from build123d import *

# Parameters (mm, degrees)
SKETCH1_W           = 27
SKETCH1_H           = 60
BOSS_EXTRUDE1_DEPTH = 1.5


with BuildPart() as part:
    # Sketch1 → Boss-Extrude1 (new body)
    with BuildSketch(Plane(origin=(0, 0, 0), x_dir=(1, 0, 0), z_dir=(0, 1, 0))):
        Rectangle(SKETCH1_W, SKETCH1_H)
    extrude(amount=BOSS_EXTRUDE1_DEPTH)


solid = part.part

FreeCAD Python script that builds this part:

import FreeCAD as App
import Part
import Sketcher
from FreeCAD import Vector
Q = App.Units.Quantity


def add_polygon(sketch, points):
    """Adds a closed chain of lines whose ends are joined by coincident constraints."""
    first, n = sketch.GeometryCount, len(points)
    for a, b in zip(points, points[1:] + points[:1]):
        sketch.addGeometry(Part.LineSegment(App.Vector(*a, 0), App.Vector(*b, 0)), False)
    for i in range(n):
        sketch.addConstraint(Sketcher.Constraint("Coincident", first + i, 2, first + (i + 1) % n, 1))

doc = App.newDocument("Part")
body = doc.addObject("PartDesign::Body", "Body")

# Sketch on XZ plane
sketch1 = doc.addObject("Sketcher::SketchObject", "Sketch")
body.addObject(sketch1)
sketch1.AttachmentSupport = (doc.XZ_Plane, [""])
sketch1.MapMode = "FlatFace"
add_polygon(sketch1, [(-13.5, -30), (-13.5, 30), (13.5, 30), (13.5, -30)])  # lines 0-3
sketch1.addConstraint([
    Sketcher.Constraint("Vertical", 0),
    Sketcher.Constraint("Horizontal", 1),
    Sketcher.Constraint("Vertical", 2),
    Sketcher.Constraint("Horizontal", 3),
    Sketcher.Constraint("Symmetric", 0, 2, 2, 2, -1, 1),
    Sketcher.Constraint("DistanceX", 1, 1, 1, 2, Q("27 mm")),
    Sketcher.Constraint("DistanceY", 0, 1, 0, 2, Q("60 mm")),
])
pad1 = doc.addObject("PartDesign::Pad", "Pad")
body.addObject(pad1)
pad1.Profile = sketch1
pad1.Length = 1.5
pad1.Reversed = True

doc.recompute()
